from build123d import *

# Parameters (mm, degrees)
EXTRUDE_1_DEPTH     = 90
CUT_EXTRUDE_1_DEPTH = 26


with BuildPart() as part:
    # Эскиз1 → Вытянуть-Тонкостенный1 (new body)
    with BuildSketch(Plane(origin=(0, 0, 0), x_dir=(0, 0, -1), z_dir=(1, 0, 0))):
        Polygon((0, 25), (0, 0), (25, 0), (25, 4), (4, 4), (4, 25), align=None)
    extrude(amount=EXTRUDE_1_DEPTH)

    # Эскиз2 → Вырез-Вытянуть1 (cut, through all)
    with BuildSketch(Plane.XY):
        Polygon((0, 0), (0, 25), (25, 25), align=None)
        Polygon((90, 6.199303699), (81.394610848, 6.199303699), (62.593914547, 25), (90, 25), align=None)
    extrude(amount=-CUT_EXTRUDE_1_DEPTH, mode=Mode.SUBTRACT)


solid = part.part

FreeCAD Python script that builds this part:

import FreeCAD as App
import Part
import Sketcher

V = App.Vector
Q = App.Units.Quantity

doc = App.newDocument("Part")
body = doc.addObject("PartDesign::Body", "Body")

sketch1 = body.newObject("Sketcher::SketchObject", "Sketch")
sketch1.AttachmentSupport = (doc.getObject("YZ_Plane"), [""])
sketch1.MapMode = "FlatFace"
sketch1.addGeometry([
    Part.LineSegment(V(25, 0, 0), V(0, 0, 0)),
    Part.LineSegment(V(0, 0, 0), V(0, -25, 0)),
    Part.LineSegment(V(0, -25, 0), V(4, -25, 0)),
    Part.LineSegment(V(4, -25, 0), V(4, -4, 0)),
    Part.LineSegment(V(4, -4, 0), V(25, -4, 0)),
    Part.LineSegment(V(25, -4, 0), V(25, 0, 0)),
], False)
sketch1.addConstraint([
    Sketcher.Constraint("Coincident", 0, 2, 1, 1),
    Sketcher.Constraint("Coincident", 1, 2, 2, 1),
    Sketcher.Constraint("Coincident", 2, 2, 3, 1),
    Sketcher.Constraint("Coincident", 3, 2, 4, 1),
    Sketcher.Constraint("Coincident", 4, 2, 5, 1),
    Sketcher.Constraint("Coincident", 5, 2, 0, 1),
    Sketcher.Constraint("Horizontal", 0),
    Sketcher.Constraint("Vertical", 1),
    Sketcher.Constraint("Horizontal", 2),
    Sketcher.Constraint("Vertical", 3),
    Sketcher.Constraint("Horizontal", 4),
    Sketcher.Constraint("Vertical", 5),
    Sketcher.Constraint("Coincident", 0, 2, -1, 1),
    Sketcher.Constraint("Equal", 0, 1),
    Sketcher.Constraint("Equal", 4, 3),
    Sketcher.Constraint("DistanceX", 0, 2, 0, 1, Q("25 mm")),
    Sketcher.Constraint("DistanceX", 2, 1, 2, 2, Q("4 mm")),
])
pad1 = body.newObject("PartDesign::Pad", "Pad")
pad1.Profile = sketch1
pad1.Length = 90

sketch2 = body.newObject("Sketcher::SketchObject", "Sketch001")
sketch2.AttachmentSupport = (doc.getObject("XY_Plane"), [""])
sketch2.MapMode = "FlatFace"
sketch2.addGeometry([
    Part.LineSegment(V(0, 25, 0), V(0, 0, 0)),
    Part.LineSegment(V(0, 0, 0), V(25, 25, 0)),
    Part.LineSegment(V(25, 25, 0), V(0, 25, 0)),
    Part.LineSegment(V(81, 6, 0), V(90, 6, 0)),
    Part.LineSegment(V(90, 6, 0), V(90, 25, 0)),
    Part.LineSegment(V(90, 25, 0), V(63, 25, 0)),
    Part.LineSegment(V(63, 25, 0), V(81, 6, 0)),
], False)
sketch2.addConstraint([
    Sketcher.Constraint("Coincident", 0, 2, 1, 1),
    Sketcher.Constraint("Coincident", 1, 2, 2, 1),
    Sketcher.Constraint("Coincident", 2, 2, 0, 1),
    Sketcher.Constraint("Coincident", 3, 2, 4, 1),
    Sketcher.Constraint("Coincident", 4, 2, 5, 1),
    Sketcher.Constraint("Coincident", 5, 2, 6, 1),
    Sketcher.Constraint("Coincident", 6, 2, 3, 1),
    Sketcher.Constraint("Vertical", 0),
    Sketcher.Constraint("Horizontal", 2),
    Sketcher.Constraint("Horizontal", 3),
    Sketcher.Constraint("Vertical", 4),
    Sketcher.Constraint("Horizontal", 5),
    Sketcher.Constraint("Coincident", 0, 2, -1, 1),
    Sketcher.Constraint("Perpendicular", 1, 6),
    Sketcher.Constraint("Horizontal", 2, 2, 4, 2),
    Sketcher.Constraint("Equal", 2, 0),
    Sketcher.Constraint("DistanceX", 2, 2, 2, 1, Q("25 mm")),
    Sketcher.Constraint("DistanceX", -1, 1, 3, 2, Q("90 mm")),
    Sketcher.Constraint("Distance", 6, Q("26.5882 mm")),
    Sketcher.Constraint("DistanceX", 3, 1, 3, 2, Q("8.605389 mm")),
])
pocket1 = body.newObject("PartDesign::Pocket", "Pocket")
pocket1.Profile = sketch2
pocket1.Type = "ThroughAll"

doc.recompute()
